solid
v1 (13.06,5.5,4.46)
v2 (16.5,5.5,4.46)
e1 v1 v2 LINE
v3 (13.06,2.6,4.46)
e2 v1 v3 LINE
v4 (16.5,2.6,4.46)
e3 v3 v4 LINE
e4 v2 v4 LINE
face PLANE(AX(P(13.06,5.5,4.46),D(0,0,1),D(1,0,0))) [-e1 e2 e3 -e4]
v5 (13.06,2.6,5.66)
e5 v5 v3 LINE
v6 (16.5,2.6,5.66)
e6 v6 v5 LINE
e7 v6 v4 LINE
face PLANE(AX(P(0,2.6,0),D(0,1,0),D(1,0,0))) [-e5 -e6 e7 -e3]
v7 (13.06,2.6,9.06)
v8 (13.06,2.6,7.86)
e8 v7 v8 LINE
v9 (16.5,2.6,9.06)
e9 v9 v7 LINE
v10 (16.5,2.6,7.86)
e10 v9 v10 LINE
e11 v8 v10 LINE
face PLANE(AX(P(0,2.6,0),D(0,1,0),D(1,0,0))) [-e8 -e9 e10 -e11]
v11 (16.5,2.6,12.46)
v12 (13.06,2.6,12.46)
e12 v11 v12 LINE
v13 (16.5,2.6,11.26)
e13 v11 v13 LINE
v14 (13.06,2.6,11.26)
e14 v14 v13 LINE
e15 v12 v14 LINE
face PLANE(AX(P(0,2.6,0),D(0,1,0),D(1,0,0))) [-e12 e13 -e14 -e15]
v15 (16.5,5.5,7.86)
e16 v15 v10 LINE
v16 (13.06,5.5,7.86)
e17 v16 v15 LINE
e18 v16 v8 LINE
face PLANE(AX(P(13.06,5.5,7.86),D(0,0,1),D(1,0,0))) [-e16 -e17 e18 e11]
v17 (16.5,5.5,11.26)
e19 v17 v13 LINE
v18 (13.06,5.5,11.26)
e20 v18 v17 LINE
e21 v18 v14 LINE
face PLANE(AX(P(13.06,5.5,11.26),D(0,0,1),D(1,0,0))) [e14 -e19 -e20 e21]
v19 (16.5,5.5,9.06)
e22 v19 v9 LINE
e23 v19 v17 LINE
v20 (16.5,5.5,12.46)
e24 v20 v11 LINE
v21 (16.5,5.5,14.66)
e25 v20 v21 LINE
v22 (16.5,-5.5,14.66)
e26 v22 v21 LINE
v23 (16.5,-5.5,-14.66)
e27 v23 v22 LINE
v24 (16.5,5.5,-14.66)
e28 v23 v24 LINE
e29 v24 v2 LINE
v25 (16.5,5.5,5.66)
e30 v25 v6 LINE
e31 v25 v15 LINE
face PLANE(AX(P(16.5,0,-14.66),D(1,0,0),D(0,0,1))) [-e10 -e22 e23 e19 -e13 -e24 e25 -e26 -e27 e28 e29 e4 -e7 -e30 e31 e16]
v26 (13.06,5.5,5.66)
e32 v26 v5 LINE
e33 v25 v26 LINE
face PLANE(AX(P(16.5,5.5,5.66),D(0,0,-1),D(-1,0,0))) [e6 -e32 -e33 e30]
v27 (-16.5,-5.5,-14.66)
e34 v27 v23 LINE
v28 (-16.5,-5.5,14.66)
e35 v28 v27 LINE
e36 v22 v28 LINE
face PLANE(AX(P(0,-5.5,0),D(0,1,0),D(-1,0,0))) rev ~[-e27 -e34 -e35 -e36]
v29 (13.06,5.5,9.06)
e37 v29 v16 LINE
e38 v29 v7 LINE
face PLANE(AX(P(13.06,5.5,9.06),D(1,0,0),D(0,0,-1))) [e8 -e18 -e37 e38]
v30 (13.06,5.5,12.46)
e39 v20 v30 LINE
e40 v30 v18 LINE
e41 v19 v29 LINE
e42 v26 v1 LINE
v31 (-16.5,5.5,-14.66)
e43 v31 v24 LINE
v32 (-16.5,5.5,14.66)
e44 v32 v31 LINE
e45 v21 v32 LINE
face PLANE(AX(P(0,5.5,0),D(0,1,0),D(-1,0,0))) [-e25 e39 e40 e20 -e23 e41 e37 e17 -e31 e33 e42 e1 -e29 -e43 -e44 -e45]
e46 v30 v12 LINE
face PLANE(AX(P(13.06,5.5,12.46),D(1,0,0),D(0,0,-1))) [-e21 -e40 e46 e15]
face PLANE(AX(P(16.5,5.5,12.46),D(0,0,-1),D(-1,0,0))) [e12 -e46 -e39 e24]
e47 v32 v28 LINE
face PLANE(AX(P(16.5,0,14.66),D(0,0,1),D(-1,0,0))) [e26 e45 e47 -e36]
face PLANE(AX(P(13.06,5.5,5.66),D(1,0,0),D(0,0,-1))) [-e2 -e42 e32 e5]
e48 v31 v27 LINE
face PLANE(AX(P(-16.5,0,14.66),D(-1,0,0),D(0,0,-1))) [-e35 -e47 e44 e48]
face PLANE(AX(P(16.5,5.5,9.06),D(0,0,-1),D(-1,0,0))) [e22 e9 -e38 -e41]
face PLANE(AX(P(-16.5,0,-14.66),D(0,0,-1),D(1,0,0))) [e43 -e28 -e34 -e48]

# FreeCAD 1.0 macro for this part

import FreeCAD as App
import Part
import Sketcher
from FreeCAD import Vector
Q = App.Units.Quantity

doc = App.newDocument("Part")
params = doc.addObject("Spreadsheet::Sheet", "Params")
for row, (alias, value) in enumerate([
    ("sketch1_width", "33 mm"),
    ("sketch1_height", "29.32 mm"),
    ("pad1_length", "11 mm"),
    ("sketch2_height", "1.2 mm"),
    ("sketch2_width", "3.44 mm"),
    ("pocket1_length", "2.9 mm"),
], start=1):
    params.set(f"A{row}", alias)
    params.set(f"B{row}", "=" + value)
    params.setAlias(f"B{row}", alias)

body = doc.addObject("PartDesign::Body", "Body")

# Sketch on XZ plane
sketch1 = doc.addObject("Sketcher::SketchObject", "Sketch")
body.addObject(sketch1)
sketch1.AttachmentSupport = (doc.XZ_Plane, [""])
sketch1.MapMode = "FlatFace"
sketch1.addGeometry([
    Part.LineSegment(Vector(-16, 15, 0), Vector(16, 15, 0)),
    Part.LineSegment(Vector(16, 15, 0), Vector(16, -15, 0)),
    Part.LineSegment(Vector(16, -15, 0), Vector(-16, -15, 0)),
    Part.LineSegment(Vector(-16, -15, 0), Vector(-16, 15, 0)),
], False)
sketch1.addConstraint([
    Sketcher.Constraint("Coincident", 0, 2, 1, 1),
    Sketcher.Constraint("Coincident", 1, 2, 2, 1),
    Sketcher.Constraint("Coincident", 2, 2, 3, 1),
    Sketcher.Constraint("Coincident", 3, 2, 0, 1),
    Sketcher.Constraint("Horizontal", 0),
    Sketcher.Constraint("Vertical", 1),
    Sketcher.Constraint("Horizontal", 2),
    Sketcher.Constraint("Vertical", 3),
    Sketcher.Constraint("Symmetric", 0, 2, 2, 2, -1, 1),
    Sketcher.Constraint("DistanceX", 0, 1, 0, 2, Q("33 mm")),
    Sketcher.Constraint("DistanceY", 1, 2, 1, 1, Q("29.32 mm")),
])
sketch1.setExpression("Constraints[9]", "Params.sketch1_width")
sketch1.setExpression("Constraints[10]", "Params.sketch1_height")
pad1 = doc.addObject("PartDesign::Pad", "Pad")
body.addObject(pad1)
pad1.Profile = sketch1
pad1.setExpression("Length", "Params.pad1_length")
pad1.Midplane = True

# Sketch on XZ plane
sketch2 = doc.addObject("Sketcher::SketchObject", "Sketch001")
body.addObject(sketch2)
sketch2.AttachmentSupport = (doc.XZ_Plane, [""])
sketch2.MapMode = "FlatFace"
sketch2.AttachmentOffset = App.Placement(Vector(0, 0, -5.5), App.Rotation())
sketch2.addGeometry([
    Part.LineSegment(Vector(13.1, 12.5, 0), Vector(16.5, 12.5, 0)),  # 0
    Part.LineSegment(Vector(16.5, 12.5, 0), Vector(16.5, 11.3, 0)),  # 1
    Part.LineSegment(Vector(16.5, 11.3, 0), Vector(13.1, 11.3, 0)),  # 2
    Part.LineSegment(Vector(13.1, 11.3, 0), Vector(13.1, 12.5, 0)),  # 3
    Part.LineSegment(Vector(13.1, 5.7, 0), Vector(16.5, 5.7, 0)),  # 4
    Part.LineSegment(Vector(16.5, 5.7, 0), Vector(16.5, 4.5, 0)),  # 5
    Part.LineSegment(Vector(16.5, 4.5, 0), Vector(13.1, 4.5, 0)),  # 6
    Part.LineSegment(Vector(13.1, 4.5, 0), Vector(13.1, 5.7, 0)),  # 7
    Part.LineSegment(Vector(13.1, 9.1, 0), Vector(16.5, 9.1, 0)),  # 8
    Part.LineSegment(Vector(16.5, 9.1, 0), Vector(16.5, 7.9, 0)),  # 9
    Part.LineSegment(Vector(16.5, 7.9, 0), Vector(13.1, 7.9, 0)),  # 10
    Part.LineSegment(Vector(13.1, 7.9, 0), Vector(13.1, 9.1, 0)),  # 11
], False)
sketch2.addConstraint([
    Sketcher.Constraint("Coincident", 0, 2, 1, 1),
    Sketcher.Constraint("Coincident", 1, 2, 2, 1),
    Sketcher.Constraint("Coincident", 2, 2, 3, 1),
    Sketcher.Constraint("Coincident", 3, 2, 0, 1),
    Sketcher.Constraint("Coincident", 4, 2, 5, 1),
    Sketcher.Constraint("Coincident", 5, 2, 6, 1),
    Sketcher.Constraint("Coincident", 6, 2, 7, 1),
    Sketcher.Constraint("Coincident", 7, 2, 4, 1),
    Sketcher.Constraint("Coincident", 8, 2, 9, 1),
    Sketcher.Constraint("Coincident", 9, 2, 10, 1),
    Sketcher.Constraint("Coincident", 10, 2, 11, 1),
    Sketcher.Constraint("Coincident", 11, 2, 8, 1),
    Sketcher.Constraint("Horizontal", 0),
    Sketcher.Constraint("Vertical", 1),
    Sketcher.Constraint("Horizontal", 2),
    Sketcher.Constraint("Vertical", 3),
    Sketcher.Constraint("Horizontal", 4),
    Sketcher.Constraint("Vertical", 5),
    Sketcher.Constraint("Horizontal", 6),
    Sketcher.Constraint("Vertical", 7),
    Sketcher.Constraint("Horizontal", 8),
    Sketcher.Constraint("Vertical", 9),
    Sketcher.Constraint("Horizontal", 10),
    Sketcher.Constraint("Vertical", 11),
    Sketcher.Constraint("Vertical", 1, 2, 4, 2),
    Sketcher.Constraint("Vertical", 3, 2, 6, 2),
    Sketcher.Constraint("Vertical", 5, 2, 8, 2),
    Sketcher.Constraint("Vertical", 7, 2, 10, 2),
    Sketcher.Constraint("Equal", 3, 5),
    Sketcher.Constraint("Equal", 7, 9),
    Sketcher.Constraint("DistanceY", 1, 2, 1, 1, Q("1.2 mm")),
    Sketcher.Constraint("DistanceX", 0, 1, 0, 2, Q("3.44 mm")),
    Sketcher.Constraint("DistanceY", 8, 2, 1, 2, Q("2.2 mm")),
    Sketcher.Constraint("DistanceY", 4, 2, 8, 2, Q("3.4 mm")),
    Sketcher.Constraint("DistanceX", -1, 1, 0, 2, Q("16.5 mm")),
    Sketcher.Constraint("DistanceY", -1, 1, 0, 2, Q("12.46 mm")),
])
sketch2.setExpression("Constraints[30]", "Params.sketch2_height")
sketch2.setExpression("Constraints[31]", "Params.sketch2_width")
pocket1 = doc.addObject("PartDesign::Pocket", "Pocket")
body.addObject(pocket1)
pocket1.Profile = sketch2
pocket1.setExpression("Length", "Params.pocket1_length")
pocket1.Reversed = True

doc.recompute()
